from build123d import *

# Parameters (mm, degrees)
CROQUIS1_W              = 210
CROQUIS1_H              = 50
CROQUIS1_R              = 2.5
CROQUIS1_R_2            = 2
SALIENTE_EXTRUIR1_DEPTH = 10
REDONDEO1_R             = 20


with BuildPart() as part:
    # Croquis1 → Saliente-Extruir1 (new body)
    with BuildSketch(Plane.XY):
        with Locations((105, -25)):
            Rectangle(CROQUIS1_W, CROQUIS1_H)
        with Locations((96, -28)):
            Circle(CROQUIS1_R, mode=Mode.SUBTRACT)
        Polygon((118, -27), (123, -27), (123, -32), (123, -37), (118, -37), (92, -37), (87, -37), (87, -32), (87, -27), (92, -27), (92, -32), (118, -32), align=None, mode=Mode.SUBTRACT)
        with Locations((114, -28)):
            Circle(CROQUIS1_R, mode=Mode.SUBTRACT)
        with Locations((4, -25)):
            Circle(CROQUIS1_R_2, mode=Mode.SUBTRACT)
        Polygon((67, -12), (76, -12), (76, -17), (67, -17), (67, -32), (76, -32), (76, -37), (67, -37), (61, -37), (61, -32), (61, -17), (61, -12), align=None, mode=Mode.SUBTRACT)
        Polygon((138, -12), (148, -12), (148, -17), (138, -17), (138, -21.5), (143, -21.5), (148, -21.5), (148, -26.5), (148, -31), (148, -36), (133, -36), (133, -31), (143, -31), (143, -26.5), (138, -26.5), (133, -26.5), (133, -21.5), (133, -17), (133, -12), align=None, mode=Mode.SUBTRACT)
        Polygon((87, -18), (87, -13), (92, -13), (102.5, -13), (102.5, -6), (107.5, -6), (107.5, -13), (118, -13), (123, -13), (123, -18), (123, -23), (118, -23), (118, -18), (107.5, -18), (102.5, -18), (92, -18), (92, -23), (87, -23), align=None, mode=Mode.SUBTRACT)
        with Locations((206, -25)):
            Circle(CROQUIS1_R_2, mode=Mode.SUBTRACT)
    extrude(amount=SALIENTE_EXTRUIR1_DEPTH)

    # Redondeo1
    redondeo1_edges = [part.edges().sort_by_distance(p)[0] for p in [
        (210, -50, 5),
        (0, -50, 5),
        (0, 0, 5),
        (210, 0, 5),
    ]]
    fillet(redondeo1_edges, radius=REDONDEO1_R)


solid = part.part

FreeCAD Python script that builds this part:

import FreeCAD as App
import Part
import Sketcher


def edges_at(feature, points):
    """Names of the edges that pass closest to the given points."""
    edges = feature.Shape.Edges
    near = lambda p: min(range(len(edges)), key=lambda i: edges[i].distToShape(Part.Vertex(*p))[0])
    return sorted({f"Edge{near(p) + 1}" for p in points})

doc = App.newDocument("Part")
body = doc.addObject("PartDesign::Body", "Body")

# Sketch on XY plane
sketch1 = body.newObject("Sketcher::SketchObject", "Sketch")
sketch1.AttachmentSupport = (doc.getObject("XY_Plane"), [""])
sketch1.MapMode = "FlatFace"
sketch1.addGeometry(Part.LineSegment(App.Vector(0, 0, 0), App.Vector(0, -50, 0)), False)
sketch1.addGeometry(Part.LineSegment(App.Vector(0, -50, 0), App.Vector(210, -50, 0)), False)
sketch1.addGeometry(Part.LineSegment(App.Vector(210, -50, 0), App.Vector(210, 0, 0)), False)
sketch1.addGeometry(Part.LineSegment(App.Vector(210, 0, 0), App.Vector(0, 0, 0)), False)
sketch1.addGeometry(Part.LineSegment(App.Vector(118, -32, 0), App.Vector(118, -27, 0)), False)
sketch1.addGeometry(Part.LineSegment(App.Vector(118, -27, 0), App.Vector(123, -27, 0)), False)
sketch1.addGeometry(Part.LineSegment(App.Vector(123, -27, 0), App.Vector(123, -37, 0)), False)
sketch1.addGeometry(Part.LineSegment(App.Vector(123, -37, 0), App.Vector(87, -37, 0)), False)
sketch1.addGeometry(Part.LineSegment(App.Vector(87, -37, 0), App.Vector(87, -27, 0)), False)
sketch1.addGeometry(Part.LineSegment(App.Vector(87, -27, 0), App.Vector(92, -27, 0)), False)
sketch1.addGeometry(Part.LineSegment(App.Vector(92, -27, 0), App.Vector(92, -32, 0)), False)
sketch1.addGeometry(Part.LineSegment(App.Vector(92, -32, 0), App.Vector(118, -32, 0)), False)
sketch1.addGeometry(Part.Circle(App.Vector(4, -25, 0), App.Vector(0, 0, 1), 2), False)
sketch1.addGeometry(Part.Circle(App.Vector(96, -28, 0), App.Vector(0, 0, 1), 2.5), False)
sketch1.addGeometry(Part.LineSegment(App.Vector(61, -12, 0), App.Vector(76, -12, 0)), False)
sketch1.addGeometry(Part.LineSegment(App.Vector(76, -12, 0), App.Vector(76, -17, 0)), False)
sketch1.addGeometry(Part.LineSegment(App.Vector(76, -17, 0), App.Vector(67, -17, 0)), False)
sketch1.addGeometry(Part.LineSegment(App.Vector(67, -17, 0), App.Vector(67, -32, 0)), False)
sketch1.addGeometry(Part.LineSegment(App.Vector(67, -32, 0), App.Vector(76, -32, 0)), False)
sketch1.addGeometry(Part.LineSegment(App.Vector(76, -32, 0), App.Vector(76, -37, 0)), False)
sketch1.addGeometry(Part.LineSegment(App.Vector(76, -37, 0), App.Vector(61, -37, 0)), False)
sketch1.addGeometry(Part.LineSegment(App.Vector(61, -37, 0), App.Vector(61, -12, 0)), False)
sketch1.addGeometry(Part.Circle(App.Vector(114, -28, 0), App.Vector(0, 0, 1), 2.5), False)
sketch1.addGeometry(Part.LineSegment(App.Vector(133, -12, 0), App.Vector(148, -12, 0)), False)
sketch1.addGeometry(Part.LineSegment(App.Vector(148, -12, 0), App.Vector(148, -17, 0)), False)
sketch1.addGeometry(Part.LineSegment(App.Vector(148, -17, 0), App.Vector(138, -17, 0)), False)
sketch1.addGeometry(Part.LineSegment(App.Vector(138, -17, 0), App.Vector(138, -21.5, 0)), False)
sketch1.addGeometry(Part.LineSegment(App.Vector(138, -21.5, 0), App.Vector(148, -21.5, 0)), False)
sketch1.addGeometry(Part.LineSegment(App.Vector(148, -21.5, 0), App.Vector(148, -36, 0)), False)
sketch1.addGeometry(Part.LineSegment(App.Vector(148, -36, 0), App.Vector(133, -36, 0)), False)
sketch1.addGeometry(Part.LineSegment(App.Vector(133, -36, 0), App.Vector(133, -31, 0)), False)
sketch1.addGeometry(Part.LineSegment(App.Vector(133, -31, 0), App.Vector(143, -31, 0)), False)
sketch1.addGeometry(Part.LineSegment(App.Vector(143, -31, 0), App.Vector(143, -26.5, 0)), False)
sketch1.addGeometry(Part.LineSegment(App.Vector(143, -26.5, 0), App.Vector(133, -26.5, 0)), False)
sketch1.addGeometry(Part.LineSegment(App.Vector(133, -26.5, 0), App.Vector(133, -12, 0)), False)
sketch1.addGeometry(Part.Circle(App.Vector(206, -25, 0), App.Vector(0, 0, 1), 2), False)
sketch1.addGeometry(Part.LineSegment(App.Vector(87, -23, 0), App.Vector(87, -13, 0)), False)
sketch1.addGeometry(Part.LineSegment(App.Vector(87, -13, 0), App.Vector(102.5, -13, 0)), False)
sketch1.addGeometry(Part.LineSegment(App.Vector(102.5, -13, 0), App.Vector(102.5, -6, 0)), False)
sketch1.addGeometry(Part.LineSegment(App.Vector(102.5, -6, 0), App.Vector(107.5, -6, 0)), False)
sketch1.addGeometry(Part.LineSegment(App.Vector(107.5, -6, 0), App.Vector(107.5, -13, 0)), False)
sketch1.addGeometry(Part.LineSegment(App.Vector(107.5, -13, 0), App.Vector(123, -13, 0)), False)
sketch1.addGeometry(Part.LineSegment(App.Vector(123, -13, 0), App.Vector(123, -23, 0)), False)
sketch1.addGeometry(Part.LineSegment(App.Vector(123, -23, 0), App.Vector(118, -23, 0)), False)
sketch1.addGeometry(Part.LineSegment(App.Vector(118, -23, 0), App.Vector(118, -18, 0)), False)
sketch1.addGeometry(Part.LineSegment(App.Vector(118, -18, 0), App.Vector(92, -18, 0)), False)
sketch1.addGeometry(Part.LineSegment(App.Vector(92, -18, 0), App.Vector(92, -23, 0)), False)
sketch1.addGeometry(Part.LineSegment(App.Vector(92, -23, 0), App.Vector(87, -23, 0)), False)
sketch1.addConstraint(Sketcher.Constraint("Coincident", 0, 2, 1, 1))
sketch1.addConstraint(Sketcher.Constraint("Coincident", 1, 2, 2, 1))
sketch1.addConstraint(Sketcher.Constraint("Coincident", 2, 2, 3, 1))
sketch1.addConstraint(Sketcher.Constraint("Coincident", 3, 2, 0, 1))
sketch1.addConstraint(Sketcher.Constraint("Coincident", 4, 2, 5, 1))
sketch1.addConstraint(Sketcher.Constraint("Coincident", 5, 2, 6, 1))
sketch1.addConstraint(Sketcher.Constraint("Coincident", 6, 2, 7, 1))
sketch1.addConstraint(Sketcher.Constraint("Coincident", 7, 2, 8, 1))
sketch1.addConstraint(Sketcher.Constraint("Coincident", 8, 2, 9, 1))
sketch1.addConstraint(Sketcher.Constraint("Coincident", 9, 2, 10, 1))
sketch1.addConstraint(Sketcher.Constraint("Coincident", 10, 2, 11, 1))
sketch1.addConstraint(Sketcher.Constraint("Coincident", 11, 2, 4, 1))
sketch1.addConstraint(Sketcher.Constraint("Coincident", 14, 2, 15, 1))
sketch1.addConstraint(Sketcher.Constraint("Coincident", 15, 2, 16, 1))
sketch1.addConstraint(Sketcher.Constraint("Coincident", 16, 2, 17, 1))
sketch1.addConstraint(Sketcher.Constraint("Coincident", 17, 2, 18, 1))
sketch1.addConstraint(Sketcher.Constraint("Coincident", 18, 2, 19, 1))
sketch1.addConstraint(Sketcher.Constraint("Coincident", 19, 2, 20, 1))
sketch1.addConstraint(Sketcher.Constraint("Coincident", 20, 2, 21, 1))
sketch1.addConstraint(Sketcher.Constraint("Coincident", 21, 2, 14, 1))
sketch1.addConstraint(Sketcher.Constraint("Coincident", 23, 2, 24, 1))
sketch1.addConstraint(Sketcher.Constraint("Coincident", 24, 2, 25, 1))
sketch1.addConstraint(Sketcher.Constraint("Coincident", 25, 2, 26, 1))
sketch1.addConstraint(Sketcher.Constraint("Coincident", 26, 2, 27, 1))
sketch1.addConstraint(Sketcher.Constraint("Coincident", 27, 2, 28, 1))
sketch1.addConstraint(Sketcher.Constraint("Coincident", 28, 2, 29, 1))
sketch1.addConstraint(Sketcher.Constraint("Coincident", 29, 2, 30, 1))
sketch1.addConstraint(Sketcher.Constraint("Coincident", 30, 2, 31, 1))
sketch1.addConstraint(Sketcher.Constraint("Coincident", 31, 2, 32, 1))
sketch1.addConstraint(Sketcher.Constraint("Coincident", 32, 2, 33, 1))
sketch1.addConstraint(Sketcher.Constraint("Coincident", 33, 2, 34, 1))
sketch1.addConstraint(Sketcher.Constraint("Coincident", 34, 2, 23, 1))
sketch1.addConstraint(Sketcher.Constraint("Coincident", 36, 2, 37, 1))
sketch1.addConstraint(Sketcher.Constraint("Coincident", 37, 2, 38, 1))
sketch1.addConstraint(Sketcher.Constraint("Coincident", 38, 2, 39, 1))
sketch1.addConstraint(Sketcher.Constraint("Coincident", 39, 2, 40, 1))
sketch1.addConstraint(Sketcher.Constraint("Coincident", 40, 2, 41, 1))
sketch1.addConstraint(Sketcher.Constraint("Coincident", 41, 2, 42, 1))
sketch1.addConstraint(Sketcher.Constraint("Coincident", 42, 2, 43, 1))
sketch1.addConstraint(Sketcher.Constraint("Coincident", 43, 2, 44, 1))
sketch1.addConstraint(Sketcher.Constraint("Coincident", 44, 2, 45, 1))
sketch1.addConstraint(Sketcher.Constraint("Coincident", 45, 2, 46, 1))
sketch1.addConstraint(Sketcher.Constraint("Coincident", 46, 2, 47, 1))
sketch1.addConstraint(Sketcher.Constraint("Coincident", 47, 2, 36, 1))
sketch1.addConstraint(Sketcher.Constraint("Vertical", 0))
sketch1.addConstraint(Sketcher.Constraint("Horizontal", 1))
sketch1.addConstraint(Sketcher.Constraint("Vertical", 2))
sketch1.addConstraint(Sketcher.Constraint("Horizontal", 3))
sketch1.addConstraint(Sketcher.Constraint("Vertical", 4))
sketch1.addConstraint(Sketcher.Constraint("Horizontal", 5))
sketch1.addConstraint(Sketcher.Constraint("Vertical", 6))
sketch1.addConstraint(Sketcher.Constraint("Horizontal", 7))
sketch1.addConstraint(Sketcher.Constraint("Vertical", 8))
sketch1.addConstraint(Sketcher.Constraint("Horizontal", 9))
sketch1.addConstraint(Sketcher.Constraint("Vertical", 10))
sketch1.addConstraint(Sketcher.Constraint("Horizontal", 11))
sketch1.addConstraint(Sketcher.Constraint("Horizontal", 14))
sketch1.addConstraint(Sketcher.Constraint("Vertical", 15))
sketch1.addConstraint(Sketcher.Constraint("Horizontal", 16))
sketch1.addConstraint(Sketcher.Constraint("Vertical", 17))
sketch1.addConstraint(Sketcher.Constraint("Horizontal", 18))
sketch1.addConstraint(Sketcher.Constraint("Vertical", 19))
sketch1.addConstraint(Sketcher.Constraint("Horizontal", 20))
sketch1.addConstraint(Sketcher.Constraint("Vertical", 21))
sketch1.addConstraint(Sketcher.Constraint("Horizontal", 23))
sketch1.addConstraint(Sketcher.Constraint("Vertical", 24))
sketch1.addConstraint(Sketcher.Constraint("Horizontal", 25))
sketch1.addConstraint(Sketcher.Constraint("Vertical", 26))
sketch1.addConstraint(Sketcher.Constraint("Horizontal", 27))
sketch1.addConstraint(Sketcher.Constraint("Vertical", 28))
sketch1.addConstraint(Sketcher.Constraint("Horizontal", 29))
sketch1.addConstraint(Sketcher.Constraint("Vertical", 30))
sketch1.addConstraint(Sketcher.Constraint("Horizontal", 31))
sketch1.addConstraint(Sketcher.Constraint("Vertical", 32))
sketch1.addConstraint(Sketcher.Constraint("Horizontal", 33))
sketch1.addConstraint(Sketcher.Constraint("Vertical", 34))
sketch1.addConstraint(Sketcher.Constraint("Vertical", 36))
sketch1.addConstraint(Sketcher.Constraint("Horizontal", 37))
sketch1.addConstraint(Sketcher.Constraint("Vertical", 38))
sketch1.addConstraint(Sketcher.Constraint("Horizontal", 39))
sketch1.addConstraint(Sketcher.Constraint("Vertical", 40))
sketch1.addConstraint(Sketcher.Constraint("Horizontal", 41))
sketch1.addConstraint(Sketcher.Constraint("Vertical", 42))
sketch1.addConstraint(Sketcher.Constraint("Horizontal", 43))
sketch1.addConstraint(Sketcher.Constraint("Vertical", 44))
sketch1.addConstraint(Sketcher.Constraint("Horizontal", 45))
sketch1.addConstraint(Sketcher.Constraint("Vertical", 46))
sketch1.addConstraint(Sketcher.Constraint("Horizontal", 47))
sketch1.addConstraint(Sketcher.Constraint("Coincident", 3, 2, -1, 1))
sketch1.addConstraint(Sketcher.Constraint("Equal", 13, 22))
sketch1.addConstraint(Sketcher.Constraint("Equal", 12, 35))
sketch1.addConstraint(Sketcher.Constraint("Horizontal", 13, 3, 22, 3))
sketch1.addConstraint(Sketcher.Constraint("Horizontal", 12, 3, 35, 3))
sketch1.addConstraint(Sketcher.Constraint("Horizontal", 5, 2, 8, 2))
sketch1.addConstraint(Sketcher.Constraint("Horizontal", 11, 2, 17, 2))
sketch1.addConstraint(Sketcher.Constraint("Horizontal", 7, 2, 19, 2))
sketch1.addConstraint(Sketcher.Constraint("Horizontal", 21, 2, 23, 2))
sketch1.addConstraint(Sketcher.Constraint("Horizontal", 16, 2, 24, 2))
sketch1.addConstraint(Sketcher.Constraint("Horizontal", 37, 2, 40, 2))
sketch1.addConstraint(Sketcher.Constraint("Horizontal", 43, 2, 46, 2))
sketch1.addConstraint(Sketcher.Constraint("Vertical", 15, 2, 18, 2))
sketch1.addConstraint(Sketcher.Constraint("Vertical", 24, 2, 27, 2))
sketch1.addConstraint(Sketcher.Constraint("Vertical", 30, 2, 33, 2))
sketch1.addConstraint(Sketcher.Constraint("Vertical", 8, 2, 36, 2))
sketch1.addConstraint(Sketcher.Constraint("Vertical", 6, 2, 41, 2))
sketch1.addConstraint(Sketcher.Constraint("Vertical", 11, 2, 43, 2))
sketch1.addConstraint(Sketcher.Constraint("Vertical", 10, 2, 45, 2))
sketch1.addConstraint(Sketcher.Constraint("Equal", 5, 9))
sketch1.addConstraint(Sketcher.Constraint("Equal", 20, 23))
sketch1.addConstraint(Sketcher.Constraint("Equal", 27, 31))
sketch1.addConstraint(Sketcher.Constraint("Equal", 9, 39))
sketch1.addConstraint(Sketcher.Constraint("Equal", 37, 41))
sketch1.addConstraint(Sketcher.Constraint("Equal", 47, 4))
sketch1.addConstraint(Sketcher.Constraint("Equal", 33, 6))
sketch1.addConstraint(Sketcher.Constraint("Equal", 10, 15))
sketch1.addConstraint(Sketcher.Constraint("Equal", 29, 17))
sketch1.addConstraint(Sketcher.Constraint("Equal", 15, 19))
sketch1.addConstraint(Sketcher.Constraint("Equal", 24, 30))
sketch1.addConstraint(Sketcher.Constraint("Equal", 26, 32))
sketch1.addConstraint(Sketcher.Constraint("Equal", 8, 36))
sketch1.addConstraint(Sketcher.Constraint("Equal", 30, 44))
sketch1.addConstraint(Sketcher.Constraint("Diameter", 12, 4.0))
sketch1.addConstraint(Sketcher.Constraint("Diameter", 13, 5.0))
sketch1.addConstraint(Sketcher.Constraint("DistanceX", 1, 1, 1, 2, 210.0))
sketch1.addConstraint(Sketcher.Constraint("DistanceX", 5, 1, 5, 2, 5.0))
sketch1.addConstraint(Sketcher.Constraint("DistanceX", 7, 2, 7, 1, 36.0))
sketch1.addConstraint(Sketcher.Constraint("DistanceX", 14, 1, 14, 2, 15.0))
sketch1.addConstraint(Sketcher.Constraint("DistanceX", 16, 2, 16, 1, 9.0))
sketch1.addConstraint(Sketcher.Constraint("DistanceY", 0, 2, 0, 1, 50.0))
sketch1.addConstraint(Sketcher.Constraint("DistanceY", 38, 1, 38, 2, 7.0))
sketch1.addConstraint(Sketcher.Constraint("DistanceY", 26, 2, 26, 1, 4.5))
sketch1.addConstraint(Sketcher.Constraint("DistanceY", 28, 2, 28, 1, 14.5))
sketch1.addConstraint(Sketcher.Constraint("DistanceX", -1, 1, 12, 3, 4.0))
sketch1.addConstraint(Sketcher.Constraint("DistanceY", 12, 3, -1, 1, 25.0))
sketch1.addConstraint(Sketcher.Constraint("DistanceX", -1, 1, 13, 3, 96.0))
sketch1.addConstraint(Sketcher.Constraint("DistanceY", 13, 3, -1, 1, 28.0))
sketch1.addConstraint(Sketcher.Constraint("DistanceX", -1, 1, 22, 3, 114.0))
sketch1.addConstraint(Sketcher.Constraint("DistanceX", -1, 1, 35, 3, 206.0))
sketch1.addConstraint(Sketcher.Constraint("DistanceX", -1, 1, 4, 2, 118.0))
sketch1.addConstraint(Sketcher.Constraint("DistanceY", 4, 2, -1, 1, 27.0))
sketch1.addConstraint(Sketcher.Constraint("DistanceX", -1, 1, 14, 2, 76.0))
sketch1.addConstraint(Sketcher.Constraint("DistanceX", -1, 1, 23, 2, 148.0))
sketch1.addConstraint(Sketcher.Constraint("DistanceY", 36, 2, -1, 1, 13.0))
pad1 = body.newObject("PartDesign::Pad", "Pad")
pad1.Profile = sketch1
pad1.Length = 10
doc.recompute()

fillet = body.newObject("PartDesign::Fillet", "Fillet")
fillet.Base = (pad1, edges_at(pad1, [
    (210, -50, 5),
    (0, -50, 5),
    (0, 0, 5),
    (210, 0, 5),
]))
fillet.Radius = 20

doc.recompute()
